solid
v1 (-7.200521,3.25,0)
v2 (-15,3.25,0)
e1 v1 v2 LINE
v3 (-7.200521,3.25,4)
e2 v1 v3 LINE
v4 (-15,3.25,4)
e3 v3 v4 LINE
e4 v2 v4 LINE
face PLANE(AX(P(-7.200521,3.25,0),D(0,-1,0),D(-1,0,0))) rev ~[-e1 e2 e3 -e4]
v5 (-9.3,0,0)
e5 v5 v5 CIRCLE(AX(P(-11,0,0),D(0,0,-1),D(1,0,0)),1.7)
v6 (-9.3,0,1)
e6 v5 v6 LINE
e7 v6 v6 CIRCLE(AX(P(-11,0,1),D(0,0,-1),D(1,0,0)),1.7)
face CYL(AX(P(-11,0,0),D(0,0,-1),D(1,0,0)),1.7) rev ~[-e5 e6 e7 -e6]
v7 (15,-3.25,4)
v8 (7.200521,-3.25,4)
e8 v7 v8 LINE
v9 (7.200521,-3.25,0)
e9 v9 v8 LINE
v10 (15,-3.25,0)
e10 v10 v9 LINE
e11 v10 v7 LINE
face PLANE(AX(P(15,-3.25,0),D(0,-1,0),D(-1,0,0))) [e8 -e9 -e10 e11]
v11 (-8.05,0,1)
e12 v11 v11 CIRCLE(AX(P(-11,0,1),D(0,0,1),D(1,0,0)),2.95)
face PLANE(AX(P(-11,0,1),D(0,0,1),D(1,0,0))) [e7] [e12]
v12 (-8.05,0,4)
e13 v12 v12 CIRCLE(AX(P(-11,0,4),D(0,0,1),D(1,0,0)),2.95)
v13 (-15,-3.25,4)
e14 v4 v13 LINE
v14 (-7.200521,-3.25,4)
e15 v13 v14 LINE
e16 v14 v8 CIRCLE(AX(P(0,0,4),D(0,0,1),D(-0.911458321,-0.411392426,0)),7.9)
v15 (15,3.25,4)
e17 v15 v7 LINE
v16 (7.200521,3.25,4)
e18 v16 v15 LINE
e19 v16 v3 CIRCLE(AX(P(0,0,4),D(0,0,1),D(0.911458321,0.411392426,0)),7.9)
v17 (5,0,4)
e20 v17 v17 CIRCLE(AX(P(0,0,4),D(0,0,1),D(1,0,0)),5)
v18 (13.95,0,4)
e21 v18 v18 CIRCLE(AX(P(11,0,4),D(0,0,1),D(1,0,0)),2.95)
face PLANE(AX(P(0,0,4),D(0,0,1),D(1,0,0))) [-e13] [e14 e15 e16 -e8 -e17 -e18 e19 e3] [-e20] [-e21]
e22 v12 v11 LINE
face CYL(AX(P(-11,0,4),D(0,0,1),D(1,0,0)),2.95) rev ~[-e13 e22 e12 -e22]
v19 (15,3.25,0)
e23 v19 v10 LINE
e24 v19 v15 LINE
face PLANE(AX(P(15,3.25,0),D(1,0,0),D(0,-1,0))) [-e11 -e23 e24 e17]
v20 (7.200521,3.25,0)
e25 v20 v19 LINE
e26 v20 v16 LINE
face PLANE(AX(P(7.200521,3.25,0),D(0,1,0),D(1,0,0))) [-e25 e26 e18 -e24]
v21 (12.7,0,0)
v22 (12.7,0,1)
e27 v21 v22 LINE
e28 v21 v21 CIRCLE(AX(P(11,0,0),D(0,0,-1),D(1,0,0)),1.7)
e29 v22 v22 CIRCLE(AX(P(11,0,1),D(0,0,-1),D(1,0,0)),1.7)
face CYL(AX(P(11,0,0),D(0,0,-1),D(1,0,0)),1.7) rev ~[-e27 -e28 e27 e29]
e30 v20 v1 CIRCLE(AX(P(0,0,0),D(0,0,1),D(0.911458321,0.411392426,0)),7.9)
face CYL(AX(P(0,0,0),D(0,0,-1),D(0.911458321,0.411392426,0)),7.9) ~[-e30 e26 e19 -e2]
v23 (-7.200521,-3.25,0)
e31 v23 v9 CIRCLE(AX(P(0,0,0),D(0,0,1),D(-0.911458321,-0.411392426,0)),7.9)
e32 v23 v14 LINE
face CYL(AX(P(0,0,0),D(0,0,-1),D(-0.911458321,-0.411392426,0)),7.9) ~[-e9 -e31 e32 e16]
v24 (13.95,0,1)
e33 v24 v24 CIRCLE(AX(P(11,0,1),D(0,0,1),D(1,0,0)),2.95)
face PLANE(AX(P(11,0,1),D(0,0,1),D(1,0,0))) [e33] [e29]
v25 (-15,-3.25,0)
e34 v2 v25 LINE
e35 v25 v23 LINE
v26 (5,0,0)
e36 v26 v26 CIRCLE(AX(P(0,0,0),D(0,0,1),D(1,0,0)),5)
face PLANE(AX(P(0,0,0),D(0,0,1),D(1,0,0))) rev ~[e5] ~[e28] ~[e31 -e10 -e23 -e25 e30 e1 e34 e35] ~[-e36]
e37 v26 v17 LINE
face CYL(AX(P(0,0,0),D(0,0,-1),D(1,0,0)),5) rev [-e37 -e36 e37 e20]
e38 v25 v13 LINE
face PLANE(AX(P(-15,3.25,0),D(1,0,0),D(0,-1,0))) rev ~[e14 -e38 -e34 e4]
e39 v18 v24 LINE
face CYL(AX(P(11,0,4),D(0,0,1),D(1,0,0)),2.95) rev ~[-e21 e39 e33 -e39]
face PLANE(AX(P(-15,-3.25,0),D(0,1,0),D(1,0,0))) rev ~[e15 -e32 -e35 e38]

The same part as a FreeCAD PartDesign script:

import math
import FreeCAD as App
import Part
import Sketcher
from FreeCAD import Vector

doc = App.newDocument("Part")
params = doc.addObject("Spreadsheet::Sheet", "Params")
for row, (alias, value) in enumerate([
    ("sketch1_diameter", "10 mm"),
    ("sketch1_radius", "7.9 mm"),
    ("sketch1_height", "6.5 mm"),
    ("pad1_length", "4 mm"),
    ("sketch2_diameter", "3.4 mm"),
    ("sketch3_diameter", "5.9 mm"),
    ("pocket2_length", "3 mm"),
], start=1):
    params.set(f"A{row}", alias)
    params.set(f"B{row}", "=" + value)
    params.setAlias(f"B{row}", alias)

body = doc.addObject("PartDesign::Body", "Body")

sketch1 = body.newObject("Sketcher::SketchObject", "Sketch")
sketch1.AttachmentSupport = (doc.getObject("XY_Plane"), [""])
sketch1.MapMode = "FlatFace"
sketch1.addGeometry(Part.LineSegment(Vector(-7, 3, 0), Vector(-15, 3, 0)), False)
sketch1.addGeometry(Part.LineSegment(Vector(-15, 3, 0), Vector(-15, -3, 0)), False)
sketch1.addGeometry(Part.LineSegment(Vector(-15, -3, 0), Vector(-7, -3, 0)), False)
sketch1.addGeometry(Part.ArcOfCircle(Part.Circle(Vector(0, 0, 0), Vector(0, 0, 1), 8), math.radians(-156), math.radians(-24)), False)
sketch1.addGeometry(Part.LineSegment(Vector(7, -3, 0), Vector(15, -3, 0)), False)
sketch1.addGeometry(Part.LineSegment(Vector(15, -3, 0), Vector(15, 3, 0)), False)
sketch1.addGeometry(Part.LineSegment(Vector(15, 3, 0), Vector(7, 3, 0)), False)
sketch1.addGeometry(Part.ArcOfCircle(Part.Circle(Vector(0, 0, 0), Vector(0, 0, 1), 8), math.radians(24), math.radians(156)), False)
sketch1.addGeometry(Part.Circle(Vector(0, 0, 0), Vector(0, 0, 1), 5), False)
sketch1.addConstraint(Sketcher.Constraint("Coincident", 0, 2, 1, 1))
sketch1.addConstraint(Sketcher.Constraint("Coincident", 1, 2, 2, 1))
sketch1.addConstraint(Sketcher.Constraint("Coincident", 2, 2, 3, 1))
sketch1.addConstraint(Sketcher.Constraint("Coincident", 3, 2, 4, 1))
sketch1.addConstraint(Sketcher.Constraint("Coincident", 4, 2, 5, 1))
sketch1.addConstraint(Sketcher.Constraint("Coincident", 5, 2, 6, 1))
sketch1.addConstraint(Sketcher.Constraint("Coincident", 6, 2, 7, 1))
sketch1.addConstraint(Sketcher.Constraint("Coincident", 7, 2, 0, 1))
sketch1.addConstraint(Sketcher.Constraint("Horizontal", 0))
sketch1.addConstraint(Sketcher.Constraint("Vertical", 1))
sketch1.addConstraint(Sketcher.Constraint("Horizontal", 2))
sketch1.addConstraint(Sketcher.Constraint("Horizontal", 4))
sketch1.addConstraint(Sketcher.Constraint("Vertical", 5))
sketch1.addConstraint(Sketcher.Constraint("Horizontal", 6))
sketch1.addConstraint(Sketcher.Constraint("Coincident", 3, 3, -1, 1))
sketch1.addConstraint(Sketcher.Constraint("Coincident", 7, 3, -1, 1))
sketch1.addConstraint(Sketcher.Constraint("Coincident", 8, 3, -1, 1))
sketch1.addConstraint(Sketcher.Constraint("Equal", 3, 7))
sketch1.addConstraint(Sketcher.Constraint("Symmetric", 0, 2, 4, 2, -1, 1))
sketch1.addConstraint(Sketcher.Constraint("Horizontal", 2, 2, 3, 2))
sketch1.addConstraint(Sketcher.Constraint("Horizontal", 0, 2, 5, 2))
sketch1.addConstraint(Sketcher.Constraint("Diameter", 8, 10.0))
sketch1.addConstraint(Sketcher.Constraint("Radius", 3, 7.9))
sketch1.addConstraint(Sketcher.Constraint("DistanceY", 1, 2, 1, 1, 6.5))
sketch1.addConstraint(Sketcher.Constraint("DistanceX", 0, 2, -1, 1, 15.0))
sketch1.setExpression("Constraints[21]", "Params.sketch1_diameter")
sketch1.setExpression("Constraints[22]", "Params.sketch1_radius")
sketch1.setExpression("Constraints[23]", "Params.sketch1_height")
pad1 = body.newObject("PartDesign::Pad", "Pad")
pad1.Profile = sketch1
pad1.setExpression("Length", "Params.pad1_length")

sketch2 = body.newObject("Sketcher::SketchObject", "Sketch001")
sketch2.AttachmentSupport = (doc.getObject("XY_Plane"), [""])
sketch2.MapMode = "FlatFace"
sketch2.addGeometry(Part.Circle(Vector(11, 0, 0), Vector(0, 0, 1), 1.7), False)
sketch2.addGeometry(Part.Circle(Vector(-11, 0, 0), Vector(0, 0, 1), 1.7), False)
sketch2.addConstraint(Sketcher.Constraint("Equal", 0, 1))
sketch2.addConstraint(Sketcher.Constraint("Symmetric", 0, 3, 1, 3, -1, 1))
sketch2.addConstraint(Sketcher.Constraint("PointOnObject", 0, 3, -1))
sketch2.addConstraint(Sketcher.Constraint("Diameter", 0, 3.4))
sketch2.addConstraint(Sketcher.Constraint("DistanceX", -1, 1, 0, 3, 11.0))
sketch2.setExpression("Constraints[3]", "Params.sketch2_diameter")
pocket1 = body.newObject("PartDesign::Pocket", "Pocket")
pocket1.Profile = sketch2
pocket1.Type = "ThroughAll"
pocket1.Reversed = True

sketch3 = body.newObject("Sketcher::SketchObject", "Sketch002")
sketch3.AttachmentSupport = (doc.getObject("XY_Plane"), [""])
sketch3.MapMode = "FlatFace"
sketch3.AttachmentOffset = App.Placement(Vector(0, 0, 4), App.Rotation())
sketch3.addGeometry(Part.Circle(Vector(11, 0, 0), Vector(0, 0, 1), 3), False)
sketch3.addGeometry(Part.Circle(Vector(-11, 0, 0), Vector(0, 0, 1), 3), False)
sketch3.addConstraint(Sketcher.Constraint("Equal", 0, 1))
sketch3.addConstraint(Sketcher.Constraint("Symmetric", 0, 3, 1, 3, -1, 1))
sketch3.addConstraint(Sketcher.Constraint("PointOnObject", 0, 3, -1))
sketch3.addConstraint(Sketcher.Constraint("Diameter", 0, 5.9))
sketch3.addConstraint(Sketcher.Constraint("DistanceX", -1, 1, 0, 3, 11.0))
sketch3.setExpression("Constraints[3]", "Params.sketch3_diameter")
pocket2 = body.newObject("PartDesign::Pocket", "Pocket001")
pocket2.Profile = sketch3
pocket2.setExpression("Length", "Params.pocket2_length")

doc.recompute()
